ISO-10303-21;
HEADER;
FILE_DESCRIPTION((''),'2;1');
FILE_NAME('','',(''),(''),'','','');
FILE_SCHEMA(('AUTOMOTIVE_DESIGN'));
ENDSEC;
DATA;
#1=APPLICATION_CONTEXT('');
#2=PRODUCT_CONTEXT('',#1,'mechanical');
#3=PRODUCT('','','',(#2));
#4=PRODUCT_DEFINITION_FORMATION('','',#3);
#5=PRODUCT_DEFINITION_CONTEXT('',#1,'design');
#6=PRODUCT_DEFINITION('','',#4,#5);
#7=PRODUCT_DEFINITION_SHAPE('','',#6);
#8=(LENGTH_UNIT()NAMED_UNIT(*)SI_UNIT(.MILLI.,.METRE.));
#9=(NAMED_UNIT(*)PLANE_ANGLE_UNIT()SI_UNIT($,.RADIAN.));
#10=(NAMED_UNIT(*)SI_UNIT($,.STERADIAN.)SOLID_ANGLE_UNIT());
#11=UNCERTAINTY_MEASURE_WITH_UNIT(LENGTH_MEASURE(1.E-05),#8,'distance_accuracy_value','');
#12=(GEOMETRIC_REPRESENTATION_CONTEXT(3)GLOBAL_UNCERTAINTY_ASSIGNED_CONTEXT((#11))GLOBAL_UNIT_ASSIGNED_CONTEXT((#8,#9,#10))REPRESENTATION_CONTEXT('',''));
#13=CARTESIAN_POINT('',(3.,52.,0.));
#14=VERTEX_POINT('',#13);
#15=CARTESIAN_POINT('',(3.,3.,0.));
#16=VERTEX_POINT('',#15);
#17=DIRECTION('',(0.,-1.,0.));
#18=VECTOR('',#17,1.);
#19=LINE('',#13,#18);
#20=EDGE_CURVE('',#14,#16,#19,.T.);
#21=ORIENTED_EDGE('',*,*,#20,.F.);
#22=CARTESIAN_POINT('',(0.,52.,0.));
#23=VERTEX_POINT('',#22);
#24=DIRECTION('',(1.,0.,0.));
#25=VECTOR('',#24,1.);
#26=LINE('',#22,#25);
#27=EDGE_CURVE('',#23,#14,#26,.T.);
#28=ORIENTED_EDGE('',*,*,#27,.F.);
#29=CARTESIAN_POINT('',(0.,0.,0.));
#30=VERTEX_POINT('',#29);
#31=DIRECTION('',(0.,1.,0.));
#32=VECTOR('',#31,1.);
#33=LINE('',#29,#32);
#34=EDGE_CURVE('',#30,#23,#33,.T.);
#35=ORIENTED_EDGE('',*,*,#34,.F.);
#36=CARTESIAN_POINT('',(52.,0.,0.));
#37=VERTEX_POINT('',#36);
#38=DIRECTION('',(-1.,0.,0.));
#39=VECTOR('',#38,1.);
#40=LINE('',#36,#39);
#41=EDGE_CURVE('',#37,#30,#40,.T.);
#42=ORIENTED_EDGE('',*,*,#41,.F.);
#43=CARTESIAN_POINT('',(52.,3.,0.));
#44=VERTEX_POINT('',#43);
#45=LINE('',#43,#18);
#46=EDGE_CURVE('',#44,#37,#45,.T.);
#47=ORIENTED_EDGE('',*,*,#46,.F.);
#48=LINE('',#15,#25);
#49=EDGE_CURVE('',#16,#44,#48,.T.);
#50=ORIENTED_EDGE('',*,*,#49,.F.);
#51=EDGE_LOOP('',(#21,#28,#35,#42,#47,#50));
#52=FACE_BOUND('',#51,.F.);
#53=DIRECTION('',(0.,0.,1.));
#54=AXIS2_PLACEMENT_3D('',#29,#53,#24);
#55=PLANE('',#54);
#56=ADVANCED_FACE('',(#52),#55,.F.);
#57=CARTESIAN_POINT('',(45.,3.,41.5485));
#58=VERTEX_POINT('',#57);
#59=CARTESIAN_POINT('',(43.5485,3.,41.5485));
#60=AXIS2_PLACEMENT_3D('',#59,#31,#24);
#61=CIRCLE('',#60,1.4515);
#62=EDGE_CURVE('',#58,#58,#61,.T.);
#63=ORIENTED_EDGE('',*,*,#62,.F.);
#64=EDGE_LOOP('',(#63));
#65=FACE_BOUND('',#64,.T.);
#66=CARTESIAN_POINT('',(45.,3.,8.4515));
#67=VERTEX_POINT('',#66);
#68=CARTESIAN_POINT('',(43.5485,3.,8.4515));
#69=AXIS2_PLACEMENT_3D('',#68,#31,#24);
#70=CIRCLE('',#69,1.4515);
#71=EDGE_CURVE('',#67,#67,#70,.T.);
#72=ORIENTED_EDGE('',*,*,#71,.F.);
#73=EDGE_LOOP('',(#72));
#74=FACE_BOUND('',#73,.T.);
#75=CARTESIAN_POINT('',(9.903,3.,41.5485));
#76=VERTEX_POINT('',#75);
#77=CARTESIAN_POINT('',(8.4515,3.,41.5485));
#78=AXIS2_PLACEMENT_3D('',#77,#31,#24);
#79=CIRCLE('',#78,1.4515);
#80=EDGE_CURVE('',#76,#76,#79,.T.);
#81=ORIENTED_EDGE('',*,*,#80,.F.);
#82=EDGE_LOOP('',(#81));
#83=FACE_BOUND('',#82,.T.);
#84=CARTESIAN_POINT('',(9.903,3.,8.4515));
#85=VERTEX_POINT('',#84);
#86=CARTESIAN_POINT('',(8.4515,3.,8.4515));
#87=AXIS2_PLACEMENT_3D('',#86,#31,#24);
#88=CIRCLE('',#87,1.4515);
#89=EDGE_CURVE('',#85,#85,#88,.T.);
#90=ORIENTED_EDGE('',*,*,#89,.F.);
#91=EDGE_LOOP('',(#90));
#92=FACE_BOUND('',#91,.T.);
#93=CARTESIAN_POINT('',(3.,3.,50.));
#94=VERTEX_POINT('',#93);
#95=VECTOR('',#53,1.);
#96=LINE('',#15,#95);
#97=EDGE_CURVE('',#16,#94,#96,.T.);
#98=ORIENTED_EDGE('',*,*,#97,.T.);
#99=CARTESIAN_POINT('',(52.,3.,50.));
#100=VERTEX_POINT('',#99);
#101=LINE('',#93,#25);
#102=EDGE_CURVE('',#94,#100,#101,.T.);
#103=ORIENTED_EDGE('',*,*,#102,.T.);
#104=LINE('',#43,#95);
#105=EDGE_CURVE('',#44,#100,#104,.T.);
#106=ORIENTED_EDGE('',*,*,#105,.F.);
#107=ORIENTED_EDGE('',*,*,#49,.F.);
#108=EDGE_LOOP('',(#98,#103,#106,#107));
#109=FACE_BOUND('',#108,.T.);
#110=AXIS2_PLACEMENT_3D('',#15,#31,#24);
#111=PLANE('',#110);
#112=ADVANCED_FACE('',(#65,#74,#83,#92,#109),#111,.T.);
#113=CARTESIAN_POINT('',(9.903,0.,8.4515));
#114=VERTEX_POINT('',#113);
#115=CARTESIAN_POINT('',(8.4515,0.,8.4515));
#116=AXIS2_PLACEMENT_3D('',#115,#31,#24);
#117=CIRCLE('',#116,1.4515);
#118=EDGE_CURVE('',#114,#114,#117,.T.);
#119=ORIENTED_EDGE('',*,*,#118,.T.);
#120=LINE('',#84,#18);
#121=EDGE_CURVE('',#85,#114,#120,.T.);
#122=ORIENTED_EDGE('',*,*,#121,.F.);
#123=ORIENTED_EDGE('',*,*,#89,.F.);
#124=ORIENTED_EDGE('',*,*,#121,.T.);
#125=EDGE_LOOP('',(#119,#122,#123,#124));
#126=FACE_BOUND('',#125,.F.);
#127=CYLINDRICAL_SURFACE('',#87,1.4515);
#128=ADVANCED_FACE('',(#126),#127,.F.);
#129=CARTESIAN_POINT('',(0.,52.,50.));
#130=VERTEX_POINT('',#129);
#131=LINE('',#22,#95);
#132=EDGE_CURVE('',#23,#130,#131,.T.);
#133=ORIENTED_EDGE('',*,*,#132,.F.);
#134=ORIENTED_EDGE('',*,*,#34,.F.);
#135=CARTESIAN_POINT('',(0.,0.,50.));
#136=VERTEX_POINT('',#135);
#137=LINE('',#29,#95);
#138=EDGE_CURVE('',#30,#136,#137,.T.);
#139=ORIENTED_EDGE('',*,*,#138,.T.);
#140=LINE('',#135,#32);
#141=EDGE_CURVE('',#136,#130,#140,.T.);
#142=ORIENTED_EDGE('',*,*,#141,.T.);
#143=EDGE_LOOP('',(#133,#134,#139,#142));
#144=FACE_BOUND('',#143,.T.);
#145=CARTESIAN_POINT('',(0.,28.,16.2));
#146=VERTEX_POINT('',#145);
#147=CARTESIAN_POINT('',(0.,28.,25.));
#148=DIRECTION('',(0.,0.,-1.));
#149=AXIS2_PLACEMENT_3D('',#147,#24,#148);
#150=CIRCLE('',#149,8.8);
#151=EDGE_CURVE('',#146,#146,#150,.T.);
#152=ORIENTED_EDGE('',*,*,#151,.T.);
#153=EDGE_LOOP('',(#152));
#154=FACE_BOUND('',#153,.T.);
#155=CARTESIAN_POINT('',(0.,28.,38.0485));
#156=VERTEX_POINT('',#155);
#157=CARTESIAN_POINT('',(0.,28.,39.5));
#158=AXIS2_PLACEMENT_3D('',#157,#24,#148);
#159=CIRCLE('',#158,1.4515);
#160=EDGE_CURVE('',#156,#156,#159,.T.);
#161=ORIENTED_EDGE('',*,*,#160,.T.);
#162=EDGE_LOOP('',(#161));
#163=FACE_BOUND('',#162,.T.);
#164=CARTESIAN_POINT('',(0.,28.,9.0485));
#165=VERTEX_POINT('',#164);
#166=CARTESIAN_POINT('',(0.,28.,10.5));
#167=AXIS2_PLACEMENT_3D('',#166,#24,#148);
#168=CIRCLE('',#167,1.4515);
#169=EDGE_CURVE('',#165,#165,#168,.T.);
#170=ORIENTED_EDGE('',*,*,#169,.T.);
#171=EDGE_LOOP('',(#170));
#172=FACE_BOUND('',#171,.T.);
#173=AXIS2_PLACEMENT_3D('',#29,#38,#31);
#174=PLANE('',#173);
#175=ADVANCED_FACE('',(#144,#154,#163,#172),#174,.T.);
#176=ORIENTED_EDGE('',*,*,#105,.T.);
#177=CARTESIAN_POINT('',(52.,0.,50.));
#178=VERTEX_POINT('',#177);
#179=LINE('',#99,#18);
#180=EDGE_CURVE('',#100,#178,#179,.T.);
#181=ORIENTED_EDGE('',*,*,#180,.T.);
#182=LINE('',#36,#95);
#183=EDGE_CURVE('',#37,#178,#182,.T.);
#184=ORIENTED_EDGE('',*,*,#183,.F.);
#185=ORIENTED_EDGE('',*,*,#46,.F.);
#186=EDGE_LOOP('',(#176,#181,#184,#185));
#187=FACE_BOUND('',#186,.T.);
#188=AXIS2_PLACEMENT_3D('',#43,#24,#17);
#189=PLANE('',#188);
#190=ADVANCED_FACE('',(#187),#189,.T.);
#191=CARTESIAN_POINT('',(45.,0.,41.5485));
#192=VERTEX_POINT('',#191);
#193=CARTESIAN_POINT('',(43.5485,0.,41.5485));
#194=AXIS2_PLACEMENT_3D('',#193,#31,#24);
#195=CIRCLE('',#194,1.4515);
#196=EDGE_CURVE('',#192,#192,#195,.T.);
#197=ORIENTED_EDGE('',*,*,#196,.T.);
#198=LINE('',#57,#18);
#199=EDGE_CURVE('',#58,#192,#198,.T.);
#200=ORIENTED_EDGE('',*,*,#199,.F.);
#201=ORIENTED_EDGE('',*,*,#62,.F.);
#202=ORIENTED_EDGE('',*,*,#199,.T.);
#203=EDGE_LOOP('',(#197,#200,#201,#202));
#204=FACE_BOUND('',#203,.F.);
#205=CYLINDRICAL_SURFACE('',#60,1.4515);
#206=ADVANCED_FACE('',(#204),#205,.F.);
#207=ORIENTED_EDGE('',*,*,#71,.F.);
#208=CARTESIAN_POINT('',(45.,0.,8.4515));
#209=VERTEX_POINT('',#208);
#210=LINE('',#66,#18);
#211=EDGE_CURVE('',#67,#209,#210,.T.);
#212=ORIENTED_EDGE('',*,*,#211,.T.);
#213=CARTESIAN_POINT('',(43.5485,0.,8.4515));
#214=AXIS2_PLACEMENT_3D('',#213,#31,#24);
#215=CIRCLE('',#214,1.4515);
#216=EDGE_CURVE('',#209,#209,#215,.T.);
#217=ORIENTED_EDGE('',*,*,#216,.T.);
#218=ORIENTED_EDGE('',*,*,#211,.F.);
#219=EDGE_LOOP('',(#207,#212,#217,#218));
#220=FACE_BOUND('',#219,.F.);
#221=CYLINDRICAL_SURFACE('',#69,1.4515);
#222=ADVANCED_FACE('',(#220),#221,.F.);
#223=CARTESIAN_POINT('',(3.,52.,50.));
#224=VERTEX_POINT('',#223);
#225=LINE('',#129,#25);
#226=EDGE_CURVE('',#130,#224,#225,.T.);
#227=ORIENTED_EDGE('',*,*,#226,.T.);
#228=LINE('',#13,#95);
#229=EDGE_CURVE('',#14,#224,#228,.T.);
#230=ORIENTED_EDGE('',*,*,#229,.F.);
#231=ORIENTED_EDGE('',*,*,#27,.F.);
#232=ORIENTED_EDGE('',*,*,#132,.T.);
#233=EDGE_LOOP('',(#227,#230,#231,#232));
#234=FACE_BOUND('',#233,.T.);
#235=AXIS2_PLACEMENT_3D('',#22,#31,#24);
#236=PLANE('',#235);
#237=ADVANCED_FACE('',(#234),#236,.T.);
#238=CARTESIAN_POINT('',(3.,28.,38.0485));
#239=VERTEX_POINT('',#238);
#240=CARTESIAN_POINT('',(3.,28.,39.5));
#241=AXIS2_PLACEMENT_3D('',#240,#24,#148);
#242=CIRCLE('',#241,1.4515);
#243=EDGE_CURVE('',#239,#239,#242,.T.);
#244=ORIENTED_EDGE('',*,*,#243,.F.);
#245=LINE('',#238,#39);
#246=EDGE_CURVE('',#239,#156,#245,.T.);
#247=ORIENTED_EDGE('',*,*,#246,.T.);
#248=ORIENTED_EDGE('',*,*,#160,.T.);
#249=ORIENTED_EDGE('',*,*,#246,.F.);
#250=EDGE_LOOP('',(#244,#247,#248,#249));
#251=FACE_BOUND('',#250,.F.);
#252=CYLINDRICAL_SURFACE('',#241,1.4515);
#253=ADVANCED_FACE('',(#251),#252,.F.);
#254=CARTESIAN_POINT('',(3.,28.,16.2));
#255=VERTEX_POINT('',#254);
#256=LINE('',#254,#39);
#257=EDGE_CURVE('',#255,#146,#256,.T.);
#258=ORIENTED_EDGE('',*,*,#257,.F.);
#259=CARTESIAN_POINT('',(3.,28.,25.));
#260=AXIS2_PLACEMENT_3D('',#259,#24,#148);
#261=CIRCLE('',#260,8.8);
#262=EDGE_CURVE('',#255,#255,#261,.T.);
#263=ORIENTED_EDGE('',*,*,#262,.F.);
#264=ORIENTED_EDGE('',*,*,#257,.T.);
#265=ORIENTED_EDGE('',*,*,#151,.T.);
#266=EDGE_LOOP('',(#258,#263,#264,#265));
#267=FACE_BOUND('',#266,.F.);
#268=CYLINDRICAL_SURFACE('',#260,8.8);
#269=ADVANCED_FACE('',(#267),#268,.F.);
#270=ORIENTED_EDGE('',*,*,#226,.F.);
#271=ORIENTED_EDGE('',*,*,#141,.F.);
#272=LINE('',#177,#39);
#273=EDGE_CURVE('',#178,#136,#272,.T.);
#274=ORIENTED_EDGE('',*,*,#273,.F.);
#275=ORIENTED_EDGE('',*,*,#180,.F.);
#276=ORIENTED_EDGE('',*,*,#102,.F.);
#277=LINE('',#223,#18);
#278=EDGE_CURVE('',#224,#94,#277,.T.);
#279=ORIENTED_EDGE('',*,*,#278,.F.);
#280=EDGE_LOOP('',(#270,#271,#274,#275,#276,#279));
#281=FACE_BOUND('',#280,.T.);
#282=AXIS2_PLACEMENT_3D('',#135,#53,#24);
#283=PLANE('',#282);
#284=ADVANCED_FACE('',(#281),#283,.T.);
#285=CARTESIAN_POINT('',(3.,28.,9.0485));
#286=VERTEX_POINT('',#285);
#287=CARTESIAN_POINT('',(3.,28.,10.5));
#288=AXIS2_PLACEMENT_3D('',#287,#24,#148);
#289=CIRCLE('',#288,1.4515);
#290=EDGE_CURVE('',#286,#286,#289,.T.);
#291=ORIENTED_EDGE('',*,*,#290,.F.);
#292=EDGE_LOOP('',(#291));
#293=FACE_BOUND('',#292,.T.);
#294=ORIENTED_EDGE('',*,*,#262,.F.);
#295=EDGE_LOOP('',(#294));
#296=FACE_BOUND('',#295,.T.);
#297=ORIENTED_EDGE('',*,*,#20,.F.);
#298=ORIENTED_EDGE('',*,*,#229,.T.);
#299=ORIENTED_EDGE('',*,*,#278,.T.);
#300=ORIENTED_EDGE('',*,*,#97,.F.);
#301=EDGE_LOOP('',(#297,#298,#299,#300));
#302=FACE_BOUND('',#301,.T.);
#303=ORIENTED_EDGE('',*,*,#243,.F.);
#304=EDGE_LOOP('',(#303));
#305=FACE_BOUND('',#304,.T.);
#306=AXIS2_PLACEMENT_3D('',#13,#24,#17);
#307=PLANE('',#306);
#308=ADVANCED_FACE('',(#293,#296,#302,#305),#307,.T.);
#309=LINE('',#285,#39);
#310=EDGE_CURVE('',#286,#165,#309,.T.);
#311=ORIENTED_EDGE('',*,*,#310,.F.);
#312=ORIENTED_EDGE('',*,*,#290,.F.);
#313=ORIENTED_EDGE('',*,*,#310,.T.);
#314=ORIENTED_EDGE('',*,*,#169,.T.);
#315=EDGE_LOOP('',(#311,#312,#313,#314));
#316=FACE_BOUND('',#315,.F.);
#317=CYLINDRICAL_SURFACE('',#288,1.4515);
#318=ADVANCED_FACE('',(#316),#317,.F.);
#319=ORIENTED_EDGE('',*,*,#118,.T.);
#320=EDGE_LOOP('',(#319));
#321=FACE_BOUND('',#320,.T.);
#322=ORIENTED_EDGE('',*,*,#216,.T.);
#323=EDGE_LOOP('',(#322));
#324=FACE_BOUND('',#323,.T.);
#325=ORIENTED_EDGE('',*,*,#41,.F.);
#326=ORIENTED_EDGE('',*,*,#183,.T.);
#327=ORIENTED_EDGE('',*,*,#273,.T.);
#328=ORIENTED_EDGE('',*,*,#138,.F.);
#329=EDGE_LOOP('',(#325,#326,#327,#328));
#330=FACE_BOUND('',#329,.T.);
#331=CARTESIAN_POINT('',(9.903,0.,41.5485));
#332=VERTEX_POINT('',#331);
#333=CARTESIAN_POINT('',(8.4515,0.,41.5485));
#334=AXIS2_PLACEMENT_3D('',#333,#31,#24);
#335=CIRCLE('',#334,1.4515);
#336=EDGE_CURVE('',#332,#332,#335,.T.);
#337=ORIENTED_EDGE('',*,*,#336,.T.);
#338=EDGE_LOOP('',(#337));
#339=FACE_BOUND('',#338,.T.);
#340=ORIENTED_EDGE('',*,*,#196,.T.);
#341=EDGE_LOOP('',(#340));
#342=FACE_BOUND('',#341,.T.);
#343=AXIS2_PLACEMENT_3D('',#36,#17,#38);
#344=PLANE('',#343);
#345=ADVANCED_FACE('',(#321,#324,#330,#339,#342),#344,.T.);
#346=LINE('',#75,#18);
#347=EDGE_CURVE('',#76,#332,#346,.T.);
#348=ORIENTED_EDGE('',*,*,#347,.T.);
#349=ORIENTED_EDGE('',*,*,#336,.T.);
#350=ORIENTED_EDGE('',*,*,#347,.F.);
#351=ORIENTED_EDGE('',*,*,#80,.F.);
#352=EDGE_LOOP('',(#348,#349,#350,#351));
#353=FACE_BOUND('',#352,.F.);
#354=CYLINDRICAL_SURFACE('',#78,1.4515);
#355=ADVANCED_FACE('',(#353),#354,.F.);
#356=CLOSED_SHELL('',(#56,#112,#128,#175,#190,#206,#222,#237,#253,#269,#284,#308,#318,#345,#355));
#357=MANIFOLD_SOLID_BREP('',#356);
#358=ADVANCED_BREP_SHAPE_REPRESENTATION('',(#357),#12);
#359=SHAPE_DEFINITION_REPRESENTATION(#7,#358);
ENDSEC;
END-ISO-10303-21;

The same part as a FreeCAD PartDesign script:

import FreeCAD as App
import Part
import Sketcher
Q = App.Units.Quantity


def add_polygon(sketch, points):
    """Adds a closed chain of lines whose ends are joined by coincident constraints."""
    first, n = sketch.GeometryCount, len(points)
    for a, b in zip(points, points[1:] + points[:1]):
        sketch.addGeometry(Part.LineSegment(App.Vector(*a, 0), App.Vector(*b, 0)), False)
    for i in range(n):
        sketch.addConstraint(Sketcher.Constraint("Coincident", first + i, 2, first + (i + 1) % n, 1))

doc = App.newDocument("Part")
body = doc.addObject("PartDesign::Body", "Body")

sketch1 = body.newObject("Sketcher::SketchObject", "Sketch")
sketch1.AttachmentSupport = (doc.getObject("XY_Plane"), [""])
sketch1.MapMode = "FlatFace"
add_polygon(sketch1, [(0, 52), (0, 0), (52, 0), (52, 3), (3, 3), (3, 52)])
sketch1.addConstraint(Sketcher.Constraint("Vertical", 0))
sketch1.addConstraint(Sketcher.Constraint("Horizontal", 1))
sketch1.addConstraint(Sketcher.Constraint("Vertical", 2))
sketch1.addConstraint(Sketcher.Constraint("Horizontal", 3))
sketch1.addConstraint(Sketcher.Constraint("Vertical", 4))
sketch1.addConstraint(Sketcher.Constraint("Horizontal", 5))
sketch1.addConstraint(Sketcher.Constraint("Coincident", 0, 2, -1, 1))
sketch1.addConstraint(Sketcher.Constraint("Equal", 1, 0))
sketch1.addConstraint(Sketcher.Constraint("Equal", 5, 2))
sketch1.addConstraint(Sketcher.Constraint("DistanceX", 1, 1, 1, 2, Q("52 mm")))
sketch1.addConstraint(Sketcher.Constraint("DistanceX", 5, 2, 5, 1, Q("3 mm")))
pad1 = body.newObject("PartDesign::Pad", "Pad")
pad1.Profile = sketch1
pad1.Length = 50

sketch2 = body.newObject("Sketcher::SketchObject", "Sketch001")
sketch2.AttachmentSupport = (doc.getObject("YZ_Plane"), [""])
sketch2.MapMode = "FlatFace"
sketch2.AttachmentOffset = App.Placement(App.Vector(0, 0, 3), App.Rotation())
sketch2.addGeometry(Part.Circle(App.Vector(28, 25, 0), App.Vector(0, 0, 1), 8.8), False)
sketch2.addGeometry(Part.Circle(App.Vector(28, 10.5, 0), App.Vector(0, 0, 1), 1.5), False)
sketch2.addGeometry(Part.Circle(App.Vector(28, 39.5, 0), App.Vector(0, 0, 1), 1.5), False)
sketch2.addConstraint(Sketcher.Constraint("Equal", 1, 2))
sketch2.addConstraint(Sketcher.Constraint("Vertical", 0, 3, 1, 3))
sketch2.addConstraint(Sketcher.Constraint("Vertical", 1, 3, 2, 3))
sketch2.addConstraint(Sketcher.Constraint("Diameter", 0, Q("17.6 mm")))
sketch2.addConstraint(Sketcher.Constraint("Diameter", 1, Q("2.903 mm")))
sketch2.addConstraint(Sketcher.Constraint("DistanceY", -1, 1, 0, 3, Q("25 mm")))
sketch2.addConstraint(Sketcher.Constraint("DistanceY", 1, 3, 2, 3, Q("29 mm")))
sketch2.addConstraint(Sketcher.Constraint("DistanceY", 1, 3, 0, 3, Q("14.5 mm")))
sketch2.addConstraint(Sketcher.Constraint("DistanceX", -1, 1, 0, 3, Q("28 mm")))
pocket1 = body.newObject("PartDesign::Pocket", "Pocket")
pocket1.Profile = sketch2
pocket1.Type = "ThroughAll"

sketch3 = body.newObject("Sketcher::SketchObject", "Sketch002")
sketch3.AttachmentSupport = (doc.getObject("XZ_Plane"), [""])
sketch3.MapMode = "FlatFace"
sketch3.AttachmentOffset = App.Placement(App.Vector(0, 0, -3), App.Rotation())
sketch3.addGeometry(Part.Circle(App.Vector(8.5, 41.5, 0), App.Vector(0, 0, 1), 1.5), False)
sketch3.addGeometry(Part.Circle(App.Vector(8.5, 8.5, 0), App.Vector(0, 0, 1), 1.5), False)
sketch3.addGeometry(Part.Circle(App.Vector(43.5, 41.5, 0), App.Vector(0, 0, 1), 1.5), False)
sketch3.addGeometry(Part.Circle(App.Vector(43.5, 8.5, 0), App.Vector(0, 0, 1), 1.5), False)
sketch3.addConstraint(Sketcher.Constraint("Equal", 0, 1))
sketch3.addConstraint(Sketcher.Constraint("Equal", 1, 2))
sketch3.addConstraint(Sketcher.Constraint("Equal", 2, 3))
sketch3.addConstraint(Sketcher.Constraint("Horizontal", 0, 3, 2, 3))
sketch3.addConstraint(Sketcher.Constraint("Horizontal", 1, 3, 3, 3))
sketch3.addConstraint(Sketcher.Constraint("Vertical", 0, 3, 1, 3))
sketch3.addConstraint(Sketcher.Constraint("Vertical", 2, 3, 3, 3))
sketch3.addConstraint(Sketcher.Constraint("Diameter", 0, Q("2.903 mm")))
sketch3.addConstraint(Sketcher.Constraint("DistanceY", 1, 3, 0, 3, Q("33.097 mm")))
sketch3.addConstraint(Sketcher.Constraint("DistanceX", 0, 3, 2, 3, Q("35.097 mm")))
sketch3.addConstraint(Sketcher.Constraint("DistanceX", -1, 1, 0, 3, Q("8.4515 mm")))
sketch3.addConstraint(Sketcher.Constraint("DistanceY", -1, 1, 0, 3, Q("41.5485 mm")))
pocket2 = body.newObject("PartDesign::Pocket", "Pocket001")
pocket2.Profile = sketch3
pocket2.Type = "ThroughAll"
pocket2.Reversed = True

doc.recompute()
